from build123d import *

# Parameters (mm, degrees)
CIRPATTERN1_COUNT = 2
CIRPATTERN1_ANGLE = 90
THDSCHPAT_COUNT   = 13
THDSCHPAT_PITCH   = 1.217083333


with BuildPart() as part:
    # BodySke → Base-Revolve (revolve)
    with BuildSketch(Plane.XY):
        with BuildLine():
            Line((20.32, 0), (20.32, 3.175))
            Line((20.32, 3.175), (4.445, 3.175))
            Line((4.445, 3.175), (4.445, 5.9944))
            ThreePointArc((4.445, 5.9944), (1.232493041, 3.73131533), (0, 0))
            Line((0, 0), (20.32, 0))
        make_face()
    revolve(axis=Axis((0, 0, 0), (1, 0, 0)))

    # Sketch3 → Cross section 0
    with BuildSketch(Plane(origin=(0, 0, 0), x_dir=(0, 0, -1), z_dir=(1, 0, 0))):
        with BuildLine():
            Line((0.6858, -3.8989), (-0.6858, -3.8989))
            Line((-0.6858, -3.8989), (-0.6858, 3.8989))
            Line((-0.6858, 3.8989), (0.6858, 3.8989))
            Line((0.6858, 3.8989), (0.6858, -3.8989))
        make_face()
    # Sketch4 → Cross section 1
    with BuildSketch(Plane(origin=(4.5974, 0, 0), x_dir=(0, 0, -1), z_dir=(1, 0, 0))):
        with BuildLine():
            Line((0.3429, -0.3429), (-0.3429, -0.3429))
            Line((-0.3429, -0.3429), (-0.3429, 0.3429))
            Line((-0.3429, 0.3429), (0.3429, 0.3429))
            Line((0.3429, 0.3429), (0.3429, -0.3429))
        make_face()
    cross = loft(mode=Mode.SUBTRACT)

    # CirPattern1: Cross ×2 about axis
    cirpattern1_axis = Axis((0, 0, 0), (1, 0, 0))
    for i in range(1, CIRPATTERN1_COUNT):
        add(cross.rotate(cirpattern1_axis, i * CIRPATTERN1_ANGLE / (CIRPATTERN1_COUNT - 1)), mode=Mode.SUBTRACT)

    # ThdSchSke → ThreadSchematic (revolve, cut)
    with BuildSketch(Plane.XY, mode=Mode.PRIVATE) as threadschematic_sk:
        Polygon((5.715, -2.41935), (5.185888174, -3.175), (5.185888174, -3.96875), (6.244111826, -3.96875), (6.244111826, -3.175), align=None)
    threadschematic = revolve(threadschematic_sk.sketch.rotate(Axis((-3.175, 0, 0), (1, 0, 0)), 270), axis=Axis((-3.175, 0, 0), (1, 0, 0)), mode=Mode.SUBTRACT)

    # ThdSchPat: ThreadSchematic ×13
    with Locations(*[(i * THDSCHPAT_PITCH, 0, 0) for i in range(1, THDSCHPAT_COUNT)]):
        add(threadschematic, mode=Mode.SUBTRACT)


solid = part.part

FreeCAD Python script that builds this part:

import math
import FreeCAD as App
import Part
import Sketcher
from FreeCAD import Vector
Q = App.Units.Quantity


def add_polygon(sketch, points):
    """Adds a closed chain of lines whose ends are joined by coincident constraints."""
    first, n = sketch.GeometryCount, len(points)
    for a, b in zip(points, points[1:] + points[:1]):
        sketch.addGeometry(Part.LineSegment(App.Vector(*a, 0), App.Vector(*b, 0)), False)
    for i in range(n):
        sketch.addConstraint(Sketcher.Constraint("Coincident", first + i, 2, first + (i + 1) % n, 1))

doc = App.newDocument("Part")
body = doc.addObject("PartDesign::Body", "Body")

# Sketch on XY plane
sketch1 = doc.addObject("Sketcher::SketchObject", "Sketch")
body.addObject(sketch1)
sketch1.AttachmentSupport = (doc.XY_Plane, [""])
sketch1.MapMode = "FlatFace"
sketch1.addGeometry(Part.LineSegment(Vector(20.32, 0, 0), Vector(20.32, 3.175, 0)), False)
sketch1.addGeometry(Part.LineSegment(Vector(20.32, 3.175, 0), Vector(4.445, 3.175, 0)), False)
sketch1.addGeometry(Part.LineSegment(Vector(4.445, 3.175, 0), Vector(4.445, 5.9944, 0)), False)
sketch1.addGeometry(Part.ArcOfCircle(Part.Circle(Vector(6.264438, 0, 0), Vector(0, 0, 1), 6.264438), math.radians(106.884251), math.radians(180)), False)
sketch1.addGeometry(Part.LineSegment(Vector(0, 0, 0), Vector(20.32, 0, 0)), False)
sketch1.addConstraint(Sketcher.Constraint("Coincident", 0, 2, 1, 1))
sketch1.addConstraint(Sketcher.Constraint("Coincident", 1, 2, 2, 1))
sketch1.addConstraint(Sketcher.Constraint("Coincident", 2, 2, 3, 1))
sketch1.addConstraint(Sketcher.Constraint("Coincident", 3, 2, 4, 1))
sketch1.addConstraint(Sketcher.Constraint("Coincident", 4, 2, 0, 1))
sketch1.addConstraint(Sketcher.Constraint("Vertical", 0))
sketch1.addConstraint(Sketcher.Constraint("Horizontal", 1))
sketch1.addConstraint(Sketcher.Constraint("Vertical", 2))
sketch1.addConstraint(Sketcher.Constraint("Horizontal", 4))
sketch1.addConstraint(Sketcher.Constraint("Coincident", 3, 2, -1, 1))
sketch1.addConstraint(Sketcher.Constraint("PointOnObject", 3, 3, -1))
sketch1.addConstraint(Sketcher.Constraint("DistanceX", 4, 1, 4, 2, Q("0.8 in")))
sketch1.addConstraint(Sketcher.Constraint("DistanceX", 1, 2, 1, 1, Q("0.625 in")))
sketch1.addConstraint(Sketcher.Constraint("DistanceY", 0, 1, 0, 2, Q("0.125 in")))
sketch1.addConstraint(Sketcher.Constraint("DistanceY", 2, 1, 2, 2, Q("0.111 in")))
revolution = doc.addObject("PartDesign::Revolution", "Revolution")
body.addObject(revolution)
revolution.Profile = sketch1
revolution.ReferenceAxis = (sketch1, ["H_Axis"])
revolution.Angle = 360

# Sketch on YZ plane
sketch2 = doc.addObject("Sketcher::SketchObject", "Sketch001")
body.addObject(sketch2)
sketch2.AttachmentSupport = (doc.YZ_Plane, [""])
sketch2.MapMode = "FlatFace"
add_polygon(sketch2, [(-3.8989, 0.6858), (-3.8989, -0.6858), (3.8989, -0.6858), (3.8989, 0.6858)])  # lines 0-3
sketch2.addConstraint(Sketcher.Constraint("Vertical", 0))
sketch2.addConstraint(Sketcher.Constraint("Horizontal", 1))
sketch2.addConstraint(Sketcher.Constraint("Vertical", 2))
sketch2.addConstraint(Sketcher.Constraint("Horizontal", 3))
sketch2.addConstraint(Sketcher.Constraint("Symmetric", 0, 2, 2, 2, -1, 1))
sketch2.addConstraint(Sketcher.Constraint("DistanceX", 1, 1, 1, 2, Q("0.307 in")))
sketch2.addConstraint(Sketcher.Constraint("DistanceY", 0, 2, 0, 1, Q("0.054 in")))

# Sketch on YZ plane
sketch3 = doc.addObject("Sketcher::SketchObject", "Sketch002")
body.addObject(sketch3)
sketch3.AttachmentSupport = (doc.YZ_Plane, [""])
sketch3.MapMode = "FlatFace"
sketch3.AttachmentOffset = App.Placement(Vector(0, 0, 0.181 * 25.4), App.Rotation())
add_polygon(sketch3, [(-0.3429, 0.3429), (-0.3429, -0.3429), (0.3429, -0.3429), (0.3429, 0.3429)])  # lines 0-3
sketch3.addConstraint(Sketcher.Constraint("Vertical", 0))
sketch3.addConstraint(Sketcher.Constraint("Horizontal", 1))
sketch3.addConstraint(Sketcher.Constraint("Vertical", 2))
sketch3.addConstraint(Sketcher.Constraint("Horizontal", 3))
sketch3.addConstraint(Sketcher.Constraint("Symmetric", 0, 2, 2, 2, -1, 1))
sketch3.addConstraint(Sketcher.Constraint("Equal", 3, 0))
sketch3.addConstraint(Sketcher.Constraint("DistanceX", 1, 1, 1, 2, Q("0.027 in")))

subtractiveloft = doc.addObject("PartDesign::SubtractiveLoft", "SubtractiveLoft")
body.addObject(subtractiveloft)
subtractiveloft.Profile = sketch2
subtractiveloft.Sections = [sketch3]
doc.recompute()

polarpattern = doc.addObject("PartDesign::PolarPattern", "PolarPattern")
body.addObject(polarpattern)
polarpattern.Originals = [subtractiveloft]
polarpattern.Axis = (doc.X_Axis, [""])
polarpattern.Angle = 90
polarpattern.Occurrences = 2
body.Tip = polarpattern

# Sketch on XY plane
sketch4 = doc.addObject("Sketcher::SketchObject", "Sketch003")
body.addObject(sketch4)
sketch4.AttachmentSupport = (doc.XY_Plane, [""])
sketch4.MapMode = "FlatFace"
add_polygon(sketch4, [(5.715, -2.41935), (5.185888, -3.175), (5.185888, -3.96875), (6.244112, -3.96875), (6.244112, -3.175)])  # lines 0-4
sketch4.addConstraint(Sketcher.Constraint("Vertical", 1))
sketch4.addConstraint(Sketcher.Constraint("Horizontal", 2))
sketch4.addConstraint(Sketcher.Constraint("Vertical", 3))
sketch4.addConstraint(Sketcher.Constraint("Horizontal", 0, 2, 3, 2))
sketch4.addConstraint(Sketcher.Constraint("Equal", 0, 4))
sketch4.addConstraint(Sketcher.Constraint("Angle", 0, Q("-125 deg")))
sketch4.addConstraint(Sketcher.Constraint("DistanceY", 1, 2, 1, 1, Q("0.03125 in")))
sketch4.addConstraint(Sketcher.Constraint("DistanceY", 0, 2, -1, 1, Q("0.125 in")))
sketch4.addConstraint(Sketcher.Constraint("DistanceX", -1, 1, 4, 2, Q("0.225 in")))
sketch4.addConstraint(Sketcher.Constraint("DistanceY", 1, 2, 4, 2, Q("0.061 in")))
groove = doc.addObject("PartDesign::Groove", "Groove")
body.addObject(groove)
groove.Profile = sketch4
groove.ReferenceAxis = (sketch4, ["H_Axis"])
groove.Angle = 360
doc.recompute()

linearpattern = doc.addObject("PartDesign::LinearPattern", "LinearPattern")
body.addObject(linearpattern)
linearpattern.Originals = [groove]
linearpattern.Direction = (doc.X_Axis, [""])
linearpattern.Mode = "offset"
linearpattern.Offset = 1.217083
linearpattern.Occurrences = 13
body.Tip = linearpattern

doc.recompute()
